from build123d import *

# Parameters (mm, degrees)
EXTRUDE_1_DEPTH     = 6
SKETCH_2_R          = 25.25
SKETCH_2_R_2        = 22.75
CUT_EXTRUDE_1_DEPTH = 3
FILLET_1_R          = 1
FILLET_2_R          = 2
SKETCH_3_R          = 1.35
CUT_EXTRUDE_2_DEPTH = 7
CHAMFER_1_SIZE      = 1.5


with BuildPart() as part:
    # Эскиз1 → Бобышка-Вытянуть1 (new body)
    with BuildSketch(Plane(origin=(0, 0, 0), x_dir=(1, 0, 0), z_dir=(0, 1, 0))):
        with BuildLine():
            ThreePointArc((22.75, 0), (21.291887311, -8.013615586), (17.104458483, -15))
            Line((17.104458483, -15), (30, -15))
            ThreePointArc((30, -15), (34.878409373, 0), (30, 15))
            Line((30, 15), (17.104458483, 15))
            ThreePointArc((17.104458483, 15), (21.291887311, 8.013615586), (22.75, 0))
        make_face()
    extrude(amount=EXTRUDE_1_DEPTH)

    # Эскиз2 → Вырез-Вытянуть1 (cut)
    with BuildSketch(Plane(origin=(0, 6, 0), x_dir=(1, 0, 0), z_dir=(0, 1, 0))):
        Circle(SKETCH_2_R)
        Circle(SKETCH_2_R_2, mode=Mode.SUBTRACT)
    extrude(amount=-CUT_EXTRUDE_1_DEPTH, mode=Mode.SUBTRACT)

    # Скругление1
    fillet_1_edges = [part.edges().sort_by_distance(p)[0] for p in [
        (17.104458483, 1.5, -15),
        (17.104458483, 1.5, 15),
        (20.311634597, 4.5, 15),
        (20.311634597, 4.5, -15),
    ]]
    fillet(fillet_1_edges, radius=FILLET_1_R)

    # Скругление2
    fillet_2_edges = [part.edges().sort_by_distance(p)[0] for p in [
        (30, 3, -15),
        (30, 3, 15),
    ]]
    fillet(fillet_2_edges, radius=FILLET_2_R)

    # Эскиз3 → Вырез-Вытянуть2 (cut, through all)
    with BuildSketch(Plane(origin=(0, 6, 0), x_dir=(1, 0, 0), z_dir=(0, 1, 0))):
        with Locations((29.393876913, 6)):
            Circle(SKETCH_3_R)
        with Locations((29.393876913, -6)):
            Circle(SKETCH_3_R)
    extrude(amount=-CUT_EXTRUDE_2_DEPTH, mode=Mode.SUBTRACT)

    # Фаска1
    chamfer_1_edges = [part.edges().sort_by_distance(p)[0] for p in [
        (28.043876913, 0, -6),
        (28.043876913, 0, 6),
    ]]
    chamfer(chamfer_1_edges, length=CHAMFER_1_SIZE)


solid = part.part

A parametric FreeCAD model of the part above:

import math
import FreeCAD as App
import Part
import Sketcher
Q = App.Units.Quantity


def edges_at(feature, points):
    """Names of the edges that pass closest to the given points."""
    edges = feature.Shape.Edges
    near = lambda p: min(range(len(edges)), key=lambda i: edges[i].distToShape(Part.Vertex(*p))[0])
    return sorted({f"Edge{near(p) + 1}" for p in points})

doc = App.newDocument("Part")
body = doc.addObject("PartDesign::Body", "Body")

sketch1 = doc.addObject("Sketcher::SketchObject", "Sketch")
body.addObject(sketch1)
sketch1.AttachmentSupport = (doc.XZ_Plane, [""])
sketch1.MapMode = "FlatFace"
sketch1.addGeometry([
    Part.ArcOfCircle(Part.Circle(App.Vector(0, 0, 0), App.Vector(0, 0, 1), 23), math.radians(0), math.radians(41)),
    Part.LineSegment(App.Vector(17, 15, 0), App.Vector(30, 15, 0)),
    Part.ArcOfCircle(Part.Circle(App.Vector(9, 0, 0), App.Vector(0, 0, 1), 25), math.radians(-36), math.radians(36)),
    Part.LineSegment(App.Vector(30, -15, 0), App.Vector(17, -15, 0)),
    Part.ArcOfCircle(Part.Circle(App.Vector(0, 0, 0), App.Vector(0, 0, 1), 23), math.radians(-41), math.radians(0)),
], False)
sketch1.addConstraint([
    Sketcher.Constraint("Coincident", 0, 2, 1, 1),
    Sketcher.Constraint("Coincident", 1, 2, 2, 2),
    Sketcher.Constraint("Coincident", 2, 1, 3, 1),
    Sketcher.Constraint("Coincident", 3, 2, 4, 1),
    Sketcher.Constraint("Tangent", 4, 2, 0, 1),
    Sketcher.Constraint("Horizontal", 1),
    Sketcher.Constraint("Horizontal", 3),
    Sketcher.Constraint("Coincident", 0, 3, -1, 1),
    Sketcher.Constraint("Equal", 0, 4),
    Sketcher.Constraint("Symmetric", 1, 2, 2, 1, -1),
    Sketcher.Constraint("PointOnObject", 4, 2, -1),
    Sketcher.Constraint("Radius", 2, Q("25.5 mm")),
    Sketcher.Constraint("Radius", 0, Q("22.75 mm")),
    Sketcher.Constraint("DistanceY", -1, 1, 0, 2, Q("15 mm")),
    Sketcher.Constraint("DistanceX", -1, 1, 1, 2, Q("30 mm")),
])
pad1 = doc.addObject("PartDesign::Pad", "Pad")
body.addObject(pad1)
pad1.Profile = sketch1
pad1.Length = 6
pad1.Reversed = True

sketch2 = doc.addObject("Sketcher::SketchObject", "Sketch001")
body.addObject(sketch2)
sketch2.AttachmentSupport = (doc.XZ_Plane, [""])
sketch2.MapMode = "FlatFace"
sketch2.AttachmentOffset = App.Placement(App.Vector(0, 0, -6), App.Rotation())
sketch2.addGeometry([
    Part.Circle(App.Vector(0, 0, 0), App.Vector(0, 0, 1), 25),
    Part.Circle(App.Vector(0, 0, 0), App.Vector(0, 0, 1), 23),
], False)
sketch2.addConstraint([
    Sketcher.Constraint("Coincident", 0, 3, -1, 1),
    Sketcher.Constraint("Coincident", 1, 3, -1, 1),
    Sketcher.Constraint("Diameter", 0, Q("50.5 mm")),
    Sketcher.Constraint("Diameter", 1, Q("45.5 mm")),
])
pocket1 = doc.addObject("PartDesign::Pocket", "Pocket")
body.addObject(pocket1)
pocket1.Profile = sketch2
pocket1.Length = 3
pocket1.Reversed = True
doc.recompute()

fillet = doc.addObject("PartDesign::Fillet", "Fillet")
body.addObject(fillet)
fillet.Base = (pocket1, edges_at(pocket1, [
    (17.104, 1.5, -15),
    (17.104, 1.5, 15),
    (20.312, 4.5, 15),
    (20.312, 4.5, -15),
]))
fillet.Radius = 1
doc.recompute()

fillet2 = doc.addObject("PartDesign::Fillet", "Fillet001")
body.addObject(fillet2)
fillet2.Base = (fillet, edges_at(fillet, [(30, 3, -15), (30, 3, 15)]))
fillet2.Radius = 2

sketch3 = doc.addObject("Sketcher::SketchObject", "Sketch002")
body.addObject(sketch3)
sketch3.AttachmentSupport = (doc.XZ_Plane, [""])
sketch3.MapMode = "FlatFace"
sketch3.AttachmentOffset = App.Placement(App.Vector(0, 0, -6), App.Rotation())
sketch3.addGeometry([
    Part.Circle(App.Vector(29.4, -6, 0), App.Vector(0, 0, 1), 1.4),
    Part.Circle(App.Vector(29.4, 6, 0), App.Vector(0, 0, 1), 1.4),
], False)
sketch3.addConstraint([
    Sketcher.Constraint("Equal", 0, 1),
    Sketcher.Constraint("Symmetric", 0, 3, 1, 3, -1),
    Sketcher.Constraint("Diameter", 0, Q("2.7 mm")),
    Sketcher.Constraint("DistanceY", 0, 3, -1, 1, Q("6 mm")),
    Sketcher.Constraint("DistanceX", -1, 1, 0, 3, Q("29.393877 mm")),
])
pocket2 = doc.addObject("PartDesign::Pocket", "Pocket001")
body.addObject(pocket2)
pocket2.Profile = sketch3
pocket2.Type = "ThroughAll"
pocket2.Reversed = True
doc.recompute()

chamfer = doc.addObject("PartDesign::Chamfer", "Chamfer")
body.addObject(chamfer)
chamfer.Base = (pocket2, edges_at(pocket2, [(28.044, 0, -6), (28.044, 0, 6)]))
chamfer.Size = 1.5

doc.recompute()
